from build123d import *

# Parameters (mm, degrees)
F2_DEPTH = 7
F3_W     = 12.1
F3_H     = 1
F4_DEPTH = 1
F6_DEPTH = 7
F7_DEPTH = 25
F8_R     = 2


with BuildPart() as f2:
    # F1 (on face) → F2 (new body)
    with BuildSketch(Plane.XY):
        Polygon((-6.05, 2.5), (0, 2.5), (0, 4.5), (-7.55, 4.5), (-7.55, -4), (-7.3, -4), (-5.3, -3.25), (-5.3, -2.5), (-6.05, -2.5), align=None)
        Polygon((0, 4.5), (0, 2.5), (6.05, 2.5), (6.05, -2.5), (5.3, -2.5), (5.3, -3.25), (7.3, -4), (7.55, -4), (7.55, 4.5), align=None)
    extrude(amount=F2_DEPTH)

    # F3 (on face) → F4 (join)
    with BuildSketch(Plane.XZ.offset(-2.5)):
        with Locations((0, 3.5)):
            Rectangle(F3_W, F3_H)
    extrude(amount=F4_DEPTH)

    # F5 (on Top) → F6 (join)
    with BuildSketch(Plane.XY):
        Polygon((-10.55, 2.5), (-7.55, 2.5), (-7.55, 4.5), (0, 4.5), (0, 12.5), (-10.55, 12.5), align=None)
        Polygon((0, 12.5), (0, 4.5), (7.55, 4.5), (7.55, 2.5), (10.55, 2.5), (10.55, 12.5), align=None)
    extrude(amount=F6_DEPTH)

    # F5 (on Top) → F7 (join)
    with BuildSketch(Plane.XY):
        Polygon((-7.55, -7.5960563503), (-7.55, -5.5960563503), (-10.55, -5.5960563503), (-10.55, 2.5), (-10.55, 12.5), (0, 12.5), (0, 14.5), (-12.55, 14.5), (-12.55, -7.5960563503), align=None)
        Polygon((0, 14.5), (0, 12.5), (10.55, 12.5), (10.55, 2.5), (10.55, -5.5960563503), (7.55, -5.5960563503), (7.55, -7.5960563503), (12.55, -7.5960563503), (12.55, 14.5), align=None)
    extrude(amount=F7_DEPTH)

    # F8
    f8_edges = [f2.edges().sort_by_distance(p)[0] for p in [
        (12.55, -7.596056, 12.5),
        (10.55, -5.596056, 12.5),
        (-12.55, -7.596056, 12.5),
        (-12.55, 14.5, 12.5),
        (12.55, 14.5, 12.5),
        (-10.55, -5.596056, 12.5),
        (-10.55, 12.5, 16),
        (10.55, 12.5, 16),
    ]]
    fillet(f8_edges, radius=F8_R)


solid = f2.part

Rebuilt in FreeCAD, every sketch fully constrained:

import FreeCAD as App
import Part
import Sketcher
from FreeCAD import Vector


def edges_at(feature, points):
    """Names of the edges that pass closest to the given points."""
    edges = feature.Shape.Edges
    near = lambda p: min(range(len(edges)), key=lambda i: edges[i].distToShape(Part.Vertex(*p))[0])
    return sorted({f"Edge{near(p) + 1}" for p in points})

doc = App.newDocument("Part")
body = doc.addObject("PartDesign::Body", "Body")

# Sketch on XY plane
sketch1 = body.newObject("Sketcher::SketchObject", "Sketch")
sketch1.AttachmentSupport = (doc.getObject("XY_Plane"), [""])
sketch1.MapMode = "FlatFace"
sketch1.addGeometry([
    Part.LineSegment(Vector(-6.05, 2.5, 0), Vector(6.05, 2.5, 0)),  # 0
    Part.LineSegment(Vector(6.05, 2.5, 0), Vector(6.05, -2.5, 0)),  # 1
    Part.LineSegment(Vector(6.05, -2.5, 0), Vector(5.3, -2.5, 0)),  # 2
    Part.LineSegment(Vector(5.3, -2.5, 0), Vector(5.3, -3.25, 0)),  # 3
    Part.LineSegment(Vector(5.3, -3.25, 0), Vector(7.3, -4, 0)),  # 4
    Part.LineSegment(Vector(7.3, -4, 0), Vector(7.55, -4, 0)),  # 5
    Part.LineSegment(Vector(7.55, -4, 0), Vector(7.55, 4.5, 0)),  # 6
    Part.LineSegment(Vector(7.55, 4.5, 0), Vector(-7.55, 4.5, 0)),  # 7
    Part.LineSegment(Vector(-7.55, 4.5, 0), Vector(-7.55, -4, 0)),  # 8
    Part.LineSegment(Vector(-7.55, -4, 0), Vector(-7.3, -4, 0)),  # 9
    Part.LineSegment(Vector(-7.3, -4, 0), Vector(-5.3, -3.25, 0)),  # 10
    Part.LineSegment(Vector(-5.3, -3.25, 0), Vector(-5.3, -2.5, 0)),  # 11
    Part.LineSegment(Vector(-5.3, -2.5, 0), Vector(-6.05, -2.5, 0)),  # 12
    Part.LineSegment(Vector(-6.05, -2.5, 0), Vector(-6.05, 2.5, 0)),  # 13
], False)
sketch1.addConstraint([
    Sketcher.Constraint("Coincident", 0, 2, 1, 1),
    Sketcher.Constraint("Coincident", 1, 2, 2, 1),
    Sketcher.Constraint("Coincident", 2, 2, 3, 1),
    Sketcher.Constraint("Coincident", 3, 2, 4, 1),
    Sketcher.Constraint("Coincident", 4, 2, 5, 1),
    Sketcher.Constraint("Coincident", 5, 2, 6, 1),
    Sketcher.Constraint("Coincident", 6, 2, 7, 1),
    Sketcher.Constraint("Coincident", 7, 2, 8, 1),
    Sketcher.Constraint("Coincident", 8, 2, 9, 1),
    Sketcher.Constraint("Coincident", 9, 2, 10, 1),
    Sketcher.Constraint("Coincident", 10, 2, 11, 1),
    Sketcher.Constraint("Coincident", 11, 2, 12, 1),
    Sketcher.Constraint("Coincident", 12, 2, 13, 1),
    Sketcher.Constraint("Coincident", 13, 2, 0, 1),
    Sketcher.Constraint("Horizontal", 0),
    Sketcher.Constraint("Vertical", 1),
    Sketcher.Constraint("Horizontal", 2),
    Sketcher.Constraint("Vertical", 3),
    Sketcher.Constraint("Horizontal", 5),
    Sketcher.Constraint("Vertical", 6),
    Sketcher.Constraint("Horizontal", 7),
    Sketcher.Constraint("Vertical", 8),
    Sketcher.Constraint("Horizontal", 9),
    Sketcher.Constraint("Vertical", 11),
    Sketcher.Constraint("Horizontal", 12),
    Sketcher.Constraint("Vertical", 13),
    Sketcher.Constraint("Symmetric", 0, 2, 12, 2, -1, 1),
    Sketcher.Constraint("Symmetric", 5, 2, 8, 2, -2),
    Sketcher.Constraint("Symmetric", 3, 2, 10, 2, -2),
    Sketcher.Constraint("Horizontal", 2, 2, 11, 2),
    Sketcher.Constraint("Equal", 5, 9),
    Sketcher.Constraint("Equal", 12, 3),
    Sketcher.Constraint("DistanceY", 1, 2, 1, 1, 5.0),
    Sketcher.Constraint("DistanceX", 0, 1, 0, 2, 12.1),
    Sketcher.Constraint("DistanceX", 7, 2, 7, 1, 15.1),
    Sketcher.Constraint("DistanceY", 6, 1, 6, 2, 8.5),
    Sketcher.Constraint("DistanceY", 4, 2, -1, 1, 4.0),
    Sketcher.Constraint("DistanceX", 3, 2, 4, 2, 2.0),
    Sketcher.Constraint("DistanceX", 2, 2, 2, 1, 0.75),
])
pad1 = body.newObject("PartDesign::Pad", "Pad")
pad1.Profile = sketch1
pad1.Length = 7

# Sketch on XZ plane
sketch2 = body.newObject("Sketcher::SketchObject", "Sketch001")
sketch2.AttachmentSupport = (doc.getObject("XZ_Plane"), [""])
sketch2.MapMode = "FlatFace"
sketch2.AttachmentOffset = App.Placement(Vector(0, 0, -2.5), App.Rotation())
sketch2.addGeometry([
    Part.LineSegment(Vector(-6, 4, 0), Vector(-6, 3, 0)),
    Part.LineSegment(Vector(-6, 3, 0), Vector(6, 3, 0)),
    Part.LineSegment(Vector(6, 3, 0), Vector(6, 4, 0)),
    Part.LineSegment(Vector(6, 4, 0), Vector(-6, 4, 0)),
], False)
sketch2.addConstraint([
    Sketcher.Constraint("Coincident", 0, 2, 1, 1),
    Sketcher.Constraint("Coincident", 1, 2, 2, 1),
    Sketcher.Constraint("Coincident", 2, 2, 3, 1),
    Sketcher.Constraint("Coincident", 3, 2, 0, 1),
    Sketcher.Constraint("Vertical", 0),
    Sketcher.Constraint("Horizontal", 1),
    Sketcher.Constraint("Vertical", 2),
    Sketcher.Constraint("Horizontal", 3),
    Sketcher.Constraint("DistanceY", 0, 2, 0, 1, 1.0),
    Sketcher.Constraint("DistanceX", 1, 1, 1, 2, 12.1),
    Sketcher.Constraint("DistanceY", -1, 1, 0, 2, 3.0),
    Sketcher.Constraint("DistanceX", 0, 2, -1, 1, 6.05),
])
pad2 = body.newObject("PartDesign::Pad", "Pad001")
pad2.Profile = sketch2
pad2.Length = 1

# Sketch on XY plane
sketch3 = body.newObject("Sketcher::SketchObject", "Sketch002")
sketch3.AttachmentSupport = (doc.getObject("XY_Plane"), [""])
sketch3.MapMode = "FlatFace"
sketch3.addGeometry([
    Part.LineSegment(Vector(-10.6, 2.5, 0), Vector(-7.5, 2.5, 0)),  # 0
    Part.LineSegment(Vector(-7.5, 2.5, 0), Vector(-7.5, 4.5, 0)),  # 1
    Part.LineSegment(Vector(-7.5, 4.5, 0), Vector(7.5, 4.5, 0)),  # 2
    Part.LineSegment(Vector(7.5, 4.5, 0), Vector(7.5, 2.5, 0)),  # 3
    Part.LineSegment(Vector(7.5, 2.5, 0), Vector(10.6, 2.5, 0)),  # 4
    Part.LineSegment(Vector(10.6, 2.5, 0), Vector(10.6, 12.5, 0)),  # 5
    Part.LineSegment(Vector(10.6, 12.5, 0), Vector(-10.6, 12.5, 0)),  # 6
    Part.LineSegment(Vector(-10.6, 12.5, 0), Vector(-10.6, 2.5, 0)),  # 7
], False)
sketch3.addConstraint([
    Sketcher.Constraint("Coincident", 0, 2, 1, 1),
    Sketcher.Constraint("Coincident", 1, 2, 2, 1),
    Sketcher.Constraint("Coincident", 2, 2, 3, 1),
    Sketcher.Constraint("Coincident", 3, 2, 4, 1),
    Sketcher.Constraint("Coincident", 4, 2, 5, 1),
    Sketcher.Constraint("Coincident", 5, 2, 6, 1),
    Sketcher.Constraint("Coincident", 6, 2, 7, 1),
    Sketcher.Constraint("Coincident", 7, 2, 0, 1),
    Sketcher.Constraint("Horizontal", 0),
    Sketcher.Constraint("Vertical", 1),
    Sketcher.Constraint("Horizontal", 2),
    Sketcher.Constraint("Vertical", 3),
    Sketcher.Constraint("Horizontal", 4),
    Sketcher.Constraint("Vertical", 5),
    Sketcher.Constraint("Horizontal", 6),
    Sketcher.Constraint("Vertical", 7),
    Sketcher.Constraint("Symmetric", 0, 2, 3, 2, -2),
    Sketcher.Constraint("Equal", 0, 4),
    Sketcher.Constraint("DistanceX", 0, 1, 0, 2, 3.0),
    Sketcher.Constraint("DistanceY", 1, 1, 1, 2, 2.0),
    Sketcher.Constraint("DistanceY", 5, 1, 5, 2, 10.0),
    Sketcher.Constraint("DistanceX", 2, 1, 2, 2, 15.1),
    Sketcher.Constraint("DistanceY", -1, 1, 0, 2, 2.5),
])
pad3 = body.newObject("PartDesign::Pad", "Pad002")
pad3.Profile = sketch3
pad3.Length = 7

# Sketch on XY plane
sketch4 = body.newObject("Sketcher::SketchObject", "Sketch003")
sketch4.AttachmentSupport = (doc.getObject("XY_Plane"), [""])
sketch4.MapMode = "FlatFace"
sketch4.addGeometry([
    Part.LineSegment(Vector(-7.5, -7.6, 0), Vector(-7.5, -5.6, 0)),  # 0
    Part.LineSegment(Vector(-7.5, -5.6, 0), Vector(-10.6, -5.6, 0)),  # 1
    Part.LineSegment(Vector(-10.6, -5.6, 0), Vector(-10.6, 12.5, 0)),  # 2
    Part.LineSegment(Vector(-10.6, 12.5, 0), Vector(10.6, 12.5, 0)),  # 3
    Part.LineSegment(Vector(10.6, 12.5, 0), Vector(10.6, -5.6, 0)),  # 4
    Part.LineSegment(Vector(10.6, -5.6, 0), Vector(7.5, -5.6, 0)),  # 5
    Part.LineSegment(Vector(7.5, -5.6, 0), Vector(7.5, -7.6, 0)),  # 6
    Part.LineSegment(Vector(7.5, -7.6, 0), Vector(12.6, -7.6, 0)),  # 7
    Part.LineSegment(Vector(12.6, -7.6, 0), Vector(12.6, 14.5, 0)),  # 8
    Part.LineSegment(Vector(12.6, 14.5, 0), Vector(-12.6, 14.5, 0)),  # 9
    Part.LineSegment(Vector(-12.6, 14.5, 0), Vector(-12.6, -7.6, 0)),  # 10
    Part.LineSegment(Vector(-12.6, -7.6, 0), Vector(-7.5, -7.6, 0)),  # 11
], False)
sketch4.addConstraint([
    Sketcher.Constraint("Coincident", 0, 2, 1, 1),
    Sketcher.Constraint("Coincident", 1, 2, 2, 1),
    Sketcher.Constraint("Coincident", 2, 2, 3, 1),
    Sketcher.Constraint("Coincident", 3, 2, 4, 1),
    Sketcher.Constraint("Coincident", 4, 2, 5, 1),
    Sketcher.Constraint("Coincident", 5, 2, 6, 1),
    Sketcher.Constraint("Coincident", 6, 2, 7, 1),
    Sketcher.Constraint("Coincident", 7, 2, 8, 1),
    Sketcher.Constraint("Coincident", 8, 2, 9, 1),
    Sketcher.Constraint("Coincident", 9, 2, 10, 1),
    Sketcher.Constraint("Coincident", 10, 2, 11, 1),
    Sketcher.Constraint("Coincident", 11, 2, 0, 1),
    Sketcher.Constraint("Vertical", 0),
    Sketcher.Constraint("Horizontal", 1),
    Sketcher.Constraint("Vertical", 2),
    Sketcher.Constraint("Horizontal", 3),
    Sketcher.Constraint("Vertical", 4),
    Sketcher.Constraint("Horizontal", 5),
    Sketcher.Constraint("Vertical", 6),
    Sketcher.Constraint("Horizontal", 7),
    Sketcher.Constraint("Vertical", 8),
    Sketcher.Constraint("Horizontal", 9),
    Sketcher.Constraint("Vertical", 10),
    Sketcher.Constraint("Horizontal", 11),
    Sketcher.Constraint("Symmetric", 1, 2, 4, 2, -2),
    Sketcher.Constraint("Symmetric", 7, 2, 10, 2, -2),
    Sketcher.Constraint("Equal", 1, 5),
    Sketcher.Constraint("DistanceX", 1, 2, 1, 1, 3.0),
    Sketcher.Constraint("DistanceX", 7, 1, 7, 2, 5.0),
    Sketcher.Constraint("DistanceY", 0, 1, 0, 2, 2.0),
    Sketcher.Constraint("DistanceX", 3, 1, 3, 2, 21.1),
    Sketcher.Constraint("DistanceY", 3, 2, 8, 2, 2.0),
    Sketcher.Constraint("DistanceY", -1, 1, 2, 2, 12.5),
    Sketcher.Constraint("DistanceY", 2, 1, 2, 2, 18.096056),
])
pad4 = body.newObject("PartDesign::Pad", "Pad003")
pad4.Profile = sketch4
pad4.Length = 25
doc.recompute()

fillet = body.newObject("PartDesign::Fillet", "Fillet")
fillet.Base = (pad4, edges_at(pad4, [
    (12.55, -7.596, 12.5),
    (10.55, -5.596, 12.5),
    (-12.55, -7.596, 12.5),
    (-12.55, 14.5, 12.5),
    (12.55, 14.5, 12.5),
    (-10.55, -5.596, 12.5),
    (-10.55, 12.5, 16),
    (10.55, 12.5, 16),
]))
fillet.Radius = 2

doc.recompute()
